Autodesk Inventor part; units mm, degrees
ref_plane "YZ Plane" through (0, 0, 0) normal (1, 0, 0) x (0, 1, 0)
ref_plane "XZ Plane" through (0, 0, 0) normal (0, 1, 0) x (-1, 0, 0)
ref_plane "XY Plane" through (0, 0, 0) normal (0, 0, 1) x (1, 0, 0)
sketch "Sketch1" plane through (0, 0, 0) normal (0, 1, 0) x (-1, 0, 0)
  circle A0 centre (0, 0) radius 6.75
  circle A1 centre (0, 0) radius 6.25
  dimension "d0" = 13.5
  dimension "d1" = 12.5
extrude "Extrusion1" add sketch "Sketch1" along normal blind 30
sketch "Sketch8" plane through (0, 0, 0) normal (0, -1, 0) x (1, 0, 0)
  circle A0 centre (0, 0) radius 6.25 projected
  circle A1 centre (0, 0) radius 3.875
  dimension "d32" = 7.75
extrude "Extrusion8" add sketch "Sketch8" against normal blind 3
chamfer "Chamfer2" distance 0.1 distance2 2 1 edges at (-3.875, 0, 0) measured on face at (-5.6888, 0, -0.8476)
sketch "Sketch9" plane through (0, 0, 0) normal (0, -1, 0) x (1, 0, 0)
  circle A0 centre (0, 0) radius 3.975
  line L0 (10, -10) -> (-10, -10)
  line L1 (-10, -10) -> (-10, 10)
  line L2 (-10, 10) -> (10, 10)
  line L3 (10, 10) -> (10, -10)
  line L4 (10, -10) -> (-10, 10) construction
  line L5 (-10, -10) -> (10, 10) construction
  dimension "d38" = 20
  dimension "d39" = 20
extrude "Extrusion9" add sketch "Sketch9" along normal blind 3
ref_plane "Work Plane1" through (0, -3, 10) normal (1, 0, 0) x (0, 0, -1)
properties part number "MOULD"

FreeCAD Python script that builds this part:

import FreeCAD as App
import Part
import Sketcher
from FreeCAD import Vector
Q = App.Units.Quantity


def edges_at(feature, points):
    """Names of the edges that pass closest to the given points."""
    edges = feature.Shape.Edges
    near = lambda p: min(range(len(edges)), key=lambda i: edges[i].distToShape(Part.Vertex(*p))[0])
    return sorted({f"Edge{near(p) + 1}" for p in points})

doc = App.newDocument("Part")
params = doc.addObject("Spreadsheet::Sheet", "Params")
for row, (alias, value) in enumerate([
    ("sketch1_diameter", "13.5 mm"),
    ("sketch1_diameter2", "12.5 mm"),
    ("pad1_length", "30 mm"),
    ("sketch2_diameter", "7.75 mm"),
    ("sketch2_diameter2", "12.5 mm"),
    ("pad2_length", "3 mm"),
    ("chamfer_size", "0.1 mm"),
    ("chamfer_size2", "2 mm"),
    ("sketch3_width", "20 mm"),
    ("sketch3_diameter", "7.95 mm"),
    ("pad3_length", "3 mm"),
], start=1):
    params.set(f"A{row}", alias)
    params.set(f"B{row}", "=" + value)
    params.setAlias(f"B{row}", alias)

body = doc.addObject("PartDesign::Body", "Body")

sketch1 = body.newObject("Sketcher::SketchObject", "Sketch")
sketch1.AttachmentSupport = (doc.getObject("XZ_Plane"), [""])
sketch1.MapMode = "FlatFace"
sketch1.addGeometry([
    Part.Circle(Vector(0, 0, 0), Vector(0, 0, 1), 7),
    Part.Circle(Vector(0, 0, 0), Vector(0, 0, 1), 6),
], False)
sketch1.addConstraint([
    Sketcher.Constraint("Coincident", 0, 3, -1, 1),
    Sketcher.Constraint("Coincident", 1, 3, -1, 1),
    Sketcher.Constraint("Diameter", 0, Q("13.5 mm")),
    Sketcher.Constraint("Diameter", 1, Q("12.5 mm")),
])
sketch1.setExpression("Constraints[2]", "Params.sketch1_diameter")
sketch1.setExpression("Constraints[3]", "Params.sketch1_diameter2")
pad1 = body.newObject("PartDesign::Pad", "Pad")
pad1.Profile = sketch1
pad1.setExpression("Length", "Params.pad1_length")
pad1.Reversed = True

sketch2 = body.newObject("Sketcher::SketchObject", "Sketch001")
sketch2.AttachmentSupport = (doc.getObject("XZ_Plane"), [""])
sketch2.MapMode = "FlatFace"
sketch2.addGeometry([
    Part.Circle(Vector(0, 0, 0), Vector(0, 0, 1), 6.2),
    Part.Circle(Vector(0, 0, 0), Vector(0, 0, 1), 3.9),
], False)
sketch2.addConstraint([
    Sketcher.Constraint("Coincident", 0, 3, -1, 1),
    Sketcher.Constraint("Coincident", 1, 3, -1, 1),
    Sketcher.Constraint("Diameter", 1, Q("7.75 mm")),
    Sketcher.Constraint("Diameter", 0, Q("12.5 mm")),
])
sketch2.setExpression("Constraints[2]", "Params.sketch2_diameter")
sketch2.setExpression("Constraints[3]", "Params.sketch2_diameter2")
pad2 = body.newObject("PartDesign::Pad", "Pad001")
pad2.Profile = sketch2
pad2.setExpression("Length", "Params.pad2_length")
pad2.Reversed = True
doc.recompute()

chamfer = body.newObject("PartDesign::Chamfer", "Chamfer")
chamfer.Base = (pad2, edges_at(pad2, [(-3.875, 0, 0)]))
chamfer.ChamferType = "Two distances"
chamfer.setExpression("Size", "Params.chamfer_size")
chamfer.setExpression("Size2", "Params.chamfer_size2")
chamfer.FlipDirection = True

sketch3 = body.newObject("Sketcher::SketchObject", "Sketch002")
sketch3.AttachmentSupport = (doc.getObject("XZ_Plane"), [""])
sketch3.MapMode = "FlatFace"
sketch3.addGeometry([
    Part.LineSegment(Vector(-10, -10, 0), Vector(10, -10, 0)),
    Part.LineSegment(Vector(10, -10, 0), Vector(10, 10, 0)),
    Part.LineSegment(Vector(10, 10, 0), Vector(-10, 10, 0)),
    Part.LineSegment(Vector(-10, 10, 0), Vector(-10, -10, 0)),
    Part.Circle(Vector(0, 0, 0), Vector(0, 0, 1), 4),
], False)
sketch3.addConstraint([
    Sketcher.Constraint("Coincident", 0, 2, 1, 1),
    Sketcher.Constraint("Coincident", 1, 2, 2, 1),
    Sketcher.Constraint("Coincident", 2, 2, 3, 1),
    Sketcher.Constraint("Coincident", 3, 2, 0, 1),
    Sketcher.Constraint("Horizontal", 0),
    Sketcher.Constraint("Vertical", 1),
    Sketcher.Constraint("Horizontal", 2),
    Sketcher.Constraint("Vertical", 3),
    Sketcher.Constraint("Coincident", 4, 3, -1, 1),
    Sketcher.Constraint("Symmetric", 0, 2, 2, 2, -1, 1),
    Sketcher.Constraint("Equal", 2, 1),
    Sketcher.Constraint("DistanceX", 0, 1, 0, 2, Q("20 mm")),
    Sketcher.Constraint("Diameter", 4, Q("7.95 mm")),
])
sketch3.setExpression("Constraints[11]", "Params.sketch3_width")
sketch3.setExpression("Constraints[12]", "Params.sketch3_diameter")
pad3 = body.newObject("PartDesign::Pad", "Pad002")
pad3.Profile = sketch3
pad3.setExpression("Length", "Params.pad3_length")

doc.recompute()
